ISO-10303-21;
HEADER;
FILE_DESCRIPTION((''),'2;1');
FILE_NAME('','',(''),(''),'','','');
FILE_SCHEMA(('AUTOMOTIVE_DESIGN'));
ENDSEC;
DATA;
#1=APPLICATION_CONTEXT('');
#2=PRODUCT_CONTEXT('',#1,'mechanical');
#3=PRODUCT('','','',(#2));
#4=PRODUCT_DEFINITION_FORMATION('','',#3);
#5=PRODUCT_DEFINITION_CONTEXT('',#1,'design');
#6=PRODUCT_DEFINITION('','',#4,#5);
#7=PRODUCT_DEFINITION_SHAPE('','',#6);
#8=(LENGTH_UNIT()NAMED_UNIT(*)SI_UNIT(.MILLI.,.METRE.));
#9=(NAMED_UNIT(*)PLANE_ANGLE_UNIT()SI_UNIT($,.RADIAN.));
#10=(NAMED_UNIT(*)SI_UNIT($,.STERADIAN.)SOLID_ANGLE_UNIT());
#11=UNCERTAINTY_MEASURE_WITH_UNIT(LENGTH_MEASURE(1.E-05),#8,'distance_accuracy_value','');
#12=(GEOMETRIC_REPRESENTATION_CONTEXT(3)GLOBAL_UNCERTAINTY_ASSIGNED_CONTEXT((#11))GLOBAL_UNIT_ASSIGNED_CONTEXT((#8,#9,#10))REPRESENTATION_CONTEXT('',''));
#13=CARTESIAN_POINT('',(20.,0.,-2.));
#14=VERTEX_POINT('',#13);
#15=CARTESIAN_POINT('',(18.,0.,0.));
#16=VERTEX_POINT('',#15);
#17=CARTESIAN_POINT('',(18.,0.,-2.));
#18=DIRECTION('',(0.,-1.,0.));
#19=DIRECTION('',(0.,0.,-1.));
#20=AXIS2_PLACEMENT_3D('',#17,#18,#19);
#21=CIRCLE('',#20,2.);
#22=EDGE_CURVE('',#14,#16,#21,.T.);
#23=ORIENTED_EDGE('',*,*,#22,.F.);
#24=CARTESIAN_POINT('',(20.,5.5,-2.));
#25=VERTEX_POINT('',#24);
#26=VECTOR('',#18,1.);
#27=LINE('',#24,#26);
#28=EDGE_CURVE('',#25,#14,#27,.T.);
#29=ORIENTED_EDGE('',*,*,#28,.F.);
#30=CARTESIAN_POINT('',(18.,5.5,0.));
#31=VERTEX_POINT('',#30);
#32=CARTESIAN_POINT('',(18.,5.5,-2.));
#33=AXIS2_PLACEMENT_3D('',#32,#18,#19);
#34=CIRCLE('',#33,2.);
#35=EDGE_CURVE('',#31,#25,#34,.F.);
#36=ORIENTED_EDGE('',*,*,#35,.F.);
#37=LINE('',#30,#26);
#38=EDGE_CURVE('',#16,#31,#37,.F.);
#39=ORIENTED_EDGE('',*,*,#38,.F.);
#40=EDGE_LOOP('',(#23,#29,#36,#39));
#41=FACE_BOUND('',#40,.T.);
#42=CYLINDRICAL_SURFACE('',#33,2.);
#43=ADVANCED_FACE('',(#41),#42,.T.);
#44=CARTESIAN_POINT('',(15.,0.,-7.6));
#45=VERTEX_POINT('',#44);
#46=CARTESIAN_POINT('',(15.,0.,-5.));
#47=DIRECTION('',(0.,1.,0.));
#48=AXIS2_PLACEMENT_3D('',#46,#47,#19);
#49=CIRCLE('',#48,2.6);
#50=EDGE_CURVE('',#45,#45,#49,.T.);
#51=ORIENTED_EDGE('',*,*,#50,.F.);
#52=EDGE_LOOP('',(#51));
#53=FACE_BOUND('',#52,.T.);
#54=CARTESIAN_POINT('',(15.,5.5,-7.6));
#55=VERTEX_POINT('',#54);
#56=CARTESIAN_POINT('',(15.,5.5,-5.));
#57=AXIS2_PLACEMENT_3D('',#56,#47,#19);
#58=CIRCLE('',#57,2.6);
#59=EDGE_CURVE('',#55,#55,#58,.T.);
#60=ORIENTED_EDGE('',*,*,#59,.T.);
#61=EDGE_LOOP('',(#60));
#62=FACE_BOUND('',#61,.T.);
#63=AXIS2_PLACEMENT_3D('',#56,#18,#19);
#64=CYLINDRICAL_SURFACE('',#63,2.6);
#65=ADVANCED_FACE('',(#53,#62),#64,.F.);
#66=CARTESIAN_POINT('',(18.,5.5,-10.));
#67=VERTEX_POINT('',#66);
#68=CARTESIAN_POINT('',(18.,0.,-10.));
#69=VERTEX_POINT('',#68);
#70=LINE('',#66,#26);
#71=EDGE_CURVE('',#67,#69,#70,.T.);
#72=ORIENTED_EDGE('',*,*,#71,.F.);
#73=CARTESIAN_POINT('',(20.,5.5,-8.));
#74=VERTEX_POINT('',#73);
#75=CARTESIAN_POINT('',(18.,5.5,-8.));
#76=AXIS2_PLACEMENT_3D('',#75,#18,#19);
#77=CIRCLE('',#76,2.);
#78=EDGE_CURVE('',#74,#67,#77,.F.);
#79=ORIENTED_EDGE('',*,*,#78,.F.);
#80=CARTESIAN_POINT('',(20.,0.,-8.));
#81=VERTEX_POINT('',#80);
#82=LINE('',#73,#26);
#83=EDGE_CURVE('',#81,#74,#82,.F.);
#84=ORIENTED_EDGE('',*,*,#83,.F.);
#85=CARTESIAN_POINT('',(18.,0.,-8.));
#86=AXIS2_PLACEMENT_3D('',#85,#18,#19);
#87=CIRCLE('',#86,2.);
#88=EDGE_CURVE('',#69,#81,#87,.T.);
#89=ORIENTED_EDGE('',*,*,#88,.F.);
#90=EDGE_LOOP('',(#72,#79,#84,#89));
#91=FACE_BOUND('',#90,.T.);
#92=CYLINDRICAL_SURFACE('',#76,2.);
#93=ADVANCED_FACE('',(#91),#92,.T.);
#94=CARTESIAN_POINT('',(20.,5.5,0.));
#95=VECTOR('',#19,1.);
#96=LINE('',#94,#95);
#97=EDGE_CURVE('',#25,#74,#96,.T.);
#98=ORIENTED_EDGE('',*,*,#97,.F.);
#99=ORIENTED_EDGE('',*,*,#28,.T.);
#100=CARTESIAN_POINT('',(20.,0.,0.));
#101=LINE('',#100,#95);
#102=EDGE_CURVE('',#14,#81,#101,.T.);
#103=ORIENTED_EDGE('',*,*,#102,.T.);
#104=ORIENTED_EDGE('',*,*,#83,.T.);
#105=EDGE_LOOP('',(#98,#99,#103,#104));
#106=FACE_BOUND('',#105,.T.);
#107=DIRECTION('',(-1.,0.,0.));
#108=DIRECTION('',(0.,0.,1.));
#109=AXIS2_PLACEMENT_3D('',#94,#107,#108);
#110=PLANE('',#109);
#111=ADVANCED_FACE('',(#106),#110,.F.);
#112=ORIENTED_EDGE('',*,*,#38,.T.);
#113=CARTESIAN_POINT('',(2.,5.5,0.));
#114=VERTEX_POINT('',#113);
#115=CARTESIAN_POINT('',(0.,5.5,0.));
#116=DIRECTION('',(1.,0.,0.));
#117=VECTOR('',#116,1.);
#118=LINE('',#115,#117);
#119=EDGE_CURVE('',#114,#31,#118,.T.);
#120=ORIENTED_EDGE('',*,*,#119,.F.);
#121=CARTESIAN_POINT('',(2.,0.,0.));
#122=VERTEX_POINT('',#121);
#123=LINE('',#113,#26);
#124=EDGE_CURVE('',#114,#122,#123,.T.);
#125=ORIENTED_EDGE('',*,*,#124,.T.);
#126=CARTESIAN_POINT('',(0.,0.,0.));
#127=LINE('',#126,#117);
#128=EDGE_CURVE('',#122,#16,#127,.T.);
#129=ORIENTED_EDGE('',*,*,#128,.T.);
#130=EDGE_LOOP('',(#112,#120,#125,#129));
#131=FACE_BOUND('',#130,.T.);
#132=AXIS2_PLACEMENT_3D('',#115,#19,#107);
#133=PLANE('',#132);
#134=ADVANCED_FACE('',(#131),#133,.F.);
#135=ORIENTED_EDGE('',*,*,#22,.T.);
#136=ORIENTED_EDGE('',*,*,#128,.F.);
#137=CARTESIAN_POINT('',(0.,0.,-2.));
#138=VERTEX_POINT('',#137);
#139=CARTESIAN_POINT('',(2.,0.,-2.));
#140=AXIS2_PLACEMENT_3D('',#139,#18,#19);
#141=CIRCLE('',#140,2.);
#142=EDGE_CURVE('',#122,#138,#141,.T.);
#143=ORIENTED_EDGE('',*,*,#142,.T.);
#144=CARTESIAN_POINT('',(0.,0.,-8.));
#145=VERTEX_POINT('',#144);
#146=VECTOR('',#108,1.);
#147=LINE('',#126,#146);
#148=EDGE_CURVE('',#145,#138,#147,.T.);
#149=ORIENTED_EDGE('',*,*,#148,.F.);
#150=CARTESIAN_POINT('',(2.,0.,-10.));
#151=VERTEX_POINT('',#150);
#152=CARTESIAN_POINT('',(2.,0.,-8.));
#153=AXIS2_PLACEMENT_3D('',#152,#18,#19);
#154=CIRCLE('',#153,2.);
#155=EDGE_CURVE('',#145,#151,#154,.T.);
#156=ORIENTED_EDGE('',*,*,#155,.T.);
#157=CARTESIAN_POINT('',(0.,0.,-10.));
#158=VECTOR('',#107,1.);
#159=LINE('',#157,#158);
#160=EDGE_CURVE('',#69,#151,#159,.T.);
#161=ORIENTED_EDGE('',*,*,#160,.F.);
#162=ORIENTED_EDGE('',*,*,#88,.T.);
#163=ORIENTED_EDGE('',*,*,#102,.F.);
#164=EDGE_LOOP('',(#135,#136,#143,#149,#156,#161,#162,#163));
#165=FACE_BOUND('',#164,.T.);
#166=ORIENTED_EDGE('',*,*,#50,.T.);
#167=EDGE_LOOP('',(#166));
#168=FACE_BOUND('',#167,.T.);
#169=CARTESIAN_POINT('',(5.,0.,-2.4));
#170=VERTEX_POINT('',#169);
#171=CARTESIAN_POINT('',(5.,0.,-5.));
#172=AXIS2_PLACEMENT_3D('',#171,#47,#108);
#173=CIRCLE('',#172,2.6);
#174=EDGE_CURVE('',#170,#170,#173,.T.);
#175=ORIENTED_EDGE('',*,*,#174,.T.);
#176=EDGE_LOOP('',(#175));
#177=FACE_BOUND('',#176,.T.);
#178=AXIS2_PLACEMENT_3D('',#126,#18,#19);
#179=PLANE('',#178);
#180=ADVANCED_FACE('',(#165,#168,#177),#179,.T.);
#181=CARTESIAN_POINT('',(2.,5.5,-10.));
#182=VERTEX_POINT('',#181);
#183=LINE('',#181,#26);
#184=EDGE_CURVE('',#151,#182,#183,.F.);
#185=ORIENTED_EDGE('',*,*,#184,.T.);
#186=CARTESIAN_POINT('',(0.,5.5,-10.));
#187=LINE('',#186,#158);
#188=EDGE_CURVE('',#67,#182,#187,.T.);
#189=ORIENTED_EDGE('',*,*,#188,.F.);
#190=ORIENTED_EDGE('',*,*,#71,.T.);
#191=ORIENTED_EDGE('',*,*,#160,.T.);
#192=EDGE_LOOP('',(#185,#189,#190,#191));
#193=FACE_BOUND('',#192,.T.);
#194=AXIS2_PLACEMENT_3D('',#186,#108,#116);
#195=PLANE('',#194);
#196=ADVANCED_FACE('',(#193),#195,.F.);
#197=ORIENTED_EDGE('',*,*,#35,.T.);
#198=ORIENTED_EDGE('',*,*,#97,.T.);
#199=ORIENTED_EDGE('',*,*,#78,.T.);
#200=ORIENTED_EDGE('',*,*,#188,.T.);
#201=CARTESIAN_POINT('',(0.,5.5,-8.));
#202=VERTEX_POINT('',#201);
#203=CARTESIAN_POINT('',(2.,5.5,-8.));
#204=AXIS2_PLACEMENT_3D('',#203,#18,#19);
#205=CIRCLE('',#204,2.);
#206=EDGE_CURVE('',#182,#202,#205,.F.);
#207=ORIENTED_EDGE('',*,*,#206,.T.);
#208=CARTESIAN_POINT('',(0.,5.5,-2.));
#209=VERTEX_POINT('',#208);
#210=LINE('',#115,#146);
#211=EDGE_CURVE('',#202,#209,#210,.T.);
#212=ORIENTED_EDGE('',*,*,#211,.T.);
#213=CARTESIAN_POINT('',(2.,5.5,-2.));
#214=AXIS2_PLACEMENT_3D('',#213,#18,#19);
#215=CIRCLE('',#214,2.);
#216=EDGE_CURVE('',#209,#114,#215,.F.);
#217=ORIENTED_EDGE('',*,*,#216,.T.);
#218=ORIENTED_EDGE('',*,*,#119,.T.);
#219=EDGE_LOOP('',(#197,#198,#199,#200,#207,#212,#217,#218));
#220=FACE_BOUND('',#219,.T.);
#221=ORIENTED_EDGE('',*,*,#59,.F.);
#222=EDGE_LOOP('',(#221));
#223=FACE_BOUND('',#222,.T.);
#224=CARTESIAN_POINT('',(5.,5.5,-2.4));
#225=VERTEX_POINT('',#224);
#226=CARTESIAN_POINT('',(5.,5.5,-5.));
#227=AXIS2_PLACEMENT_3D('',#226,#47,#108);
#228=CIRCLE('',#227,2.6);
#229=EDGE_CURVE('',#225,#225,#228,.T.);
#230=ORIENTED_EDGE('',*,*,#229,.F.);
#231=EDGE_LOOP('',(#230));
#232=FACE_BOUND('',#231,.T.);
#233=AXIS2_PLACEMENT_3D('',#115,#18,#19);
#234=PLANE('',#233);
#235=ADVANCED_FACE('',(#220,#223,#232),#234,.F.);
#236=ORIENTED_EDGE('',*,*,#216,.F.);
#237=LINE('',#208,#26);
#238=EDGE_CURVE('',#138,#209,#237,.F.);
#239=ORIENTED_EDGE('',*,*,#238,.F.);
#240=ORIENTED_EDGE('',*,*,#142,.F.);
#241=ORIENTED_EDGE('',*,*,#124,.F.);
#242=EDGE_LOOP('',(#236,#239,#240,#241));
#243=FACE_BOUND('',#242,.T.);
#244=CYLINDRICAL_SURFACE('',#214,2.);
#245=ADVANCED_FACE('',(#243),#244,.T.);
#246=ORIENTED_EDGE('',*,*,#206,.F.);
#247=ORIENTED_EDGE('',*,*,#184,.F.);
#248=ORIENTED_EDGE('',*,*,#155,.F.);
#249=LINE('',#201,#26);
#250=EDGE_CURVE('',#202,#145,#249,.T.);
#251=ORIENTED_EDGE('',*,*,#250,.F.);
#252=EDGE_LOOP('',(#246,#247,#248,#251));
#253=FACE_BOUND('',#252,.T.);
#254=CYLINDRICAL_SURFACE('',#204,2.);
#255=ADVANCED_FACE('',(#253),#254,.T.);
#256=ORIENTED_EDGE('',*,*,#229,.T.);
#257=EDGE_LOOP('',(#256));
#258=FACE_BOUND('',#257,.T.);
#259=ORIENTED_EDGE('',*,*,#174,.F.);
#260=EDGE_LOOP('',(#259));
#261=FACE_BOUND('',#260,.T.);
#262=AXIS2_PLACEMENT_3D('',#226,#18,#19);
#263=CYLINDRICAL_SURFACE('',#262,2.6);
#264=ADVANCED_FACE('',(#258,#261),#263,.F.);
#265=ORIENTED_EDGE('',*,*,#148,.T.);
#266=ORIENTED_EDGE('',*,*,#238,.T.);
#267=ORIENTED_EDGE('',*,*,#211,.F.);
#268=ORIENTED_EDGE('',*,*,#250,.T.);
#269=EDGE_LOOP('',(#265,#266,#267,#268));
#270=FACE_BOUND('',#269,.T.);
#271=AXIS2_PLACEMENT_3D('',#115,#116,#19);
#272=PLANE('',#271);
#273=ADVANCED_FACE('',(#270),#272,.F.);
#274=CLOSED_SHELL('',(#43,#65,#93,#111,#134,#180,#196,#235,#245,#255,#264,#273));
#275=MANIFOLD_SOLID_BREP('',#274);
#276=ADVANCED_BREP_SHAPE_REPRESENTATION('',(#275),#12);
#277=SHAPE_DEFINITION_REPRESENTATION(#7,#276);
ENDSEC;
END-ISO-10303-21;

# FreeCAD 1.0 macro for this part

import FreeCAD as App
import Part
import Sketcher
Q = App.Units.Quantity


def edges_at(feature, points):
    """Names of the edges that pass closest to the given points."""
    edges = feature.Shape.Edges
    near = lambda p: min(range(len(edges)), key=lambda i: edges[i].distToShape(Part.Vertex(*p))[0])
    return sorted({f"Edge{near(p) + 1}" for p in points})

doc = App.newDocument("Part")
body = doc.addObject("PartDesign::Body", "Body")

sketch1 = body.newObject("Sketcher::SketchObject", "Sketch")
sketch1.AttachmentSupport = (doc.getObject("XZ_Plane"), [""])
sketch1.MapMode = "FlatFace"
sketch1.addGeometry(Part.LineSegment(App.Vector(0, -10, 0), App.Vector(0, 0, 0)), False)
sketch1.addGeometry(Part.LineSegment(App.Vector(0, 0, 0), App.Vector(20, 0, 0)), False)
sketch1.addGeometry(Part.LineSegment(App.Vector(20, 0, 0), App.Vector(20, -10, 0)), False)
sketch1.addGeometry(Part.LineSegment(App.Vector(20, -10, 0), App.Vector(0, -10, 0)), False)
sketch1.addGeometry(Part.Circle(App.Vector(5, -5, 0), App.Vector(0, 0, 1), 2.6), False)
sketch1.addGeometry(Part.Circle(App.Vector(15, -5, 0), App.Vector(0, 0, 1), 2.6), False)
sketch1.addConstraint(Sketcher.Constraint("Coincident", 0, 2, 1, 1))
sketch1.addConstraint(Sketcher.Constraint("Coincident", 1, 2, 2, 1))
sketch1.addConstraint(Sketcher.Constraint("Coincident", 2, 2, 3, 1))
sketch1.addConstraint(Sketcher.Constraint("Coincident", 3, 2, 0, 1))
sketch1.addConstraint(Sketcher.Constraint("Vertical", 0))
sketch1.addConstraint(Sketcher.Constraint("Horizontal", 1))
sketch1.addConstraint(Sketcher.Constraint("Vertical", 2))
sketch1.addConstraint(Sketcher.Constraint("Horizontal", 3))
sketch1.addConstraint(Sketcher.Constraint("Coincident", 0, 2, -1, 1))
sketch1.addConstraint(Sketcher.Constraint("Equal", 4, 5))
sketch1.addConstraint(Sketcher.Constraint("Horizontal", 4, 3, 5, 3))
sketch1.addConstraint(Sketcher.Constraint("Diameter", 4, Q("5.2 mm")))
sketch1.addConstraint(Sketcher.Constraint("DistanceX", 1, 1, 1, 2, Q("20 mm")))
sketch1.addConstraint(Sketcher.Constraint("DistanceY", 0, 1, 0, 2, Q("10 mm")))
sketch1.addConstraint(Sketcher.Constraint("DistanceX", -1, 1, 4, 3, Q("5 mm")))
sketch1.addConstraint(Sketcher.Constraint("DistanceY", 4, 3, -1, 1, Q("5 mm")))
sketch1.addConstraint(Sketcher.Constraint("DistanceX", -1, 1, 5, 3, Q("15 mm")))
pad1 = body.newObject("PartDesign::Pad", "Pad")
pad1.Profile = sketch1
pad1.Length = 5.5
pad1.Reversed = True
doc.recompute()

fillet = body.newObject("PartDesign::Fillet", "Fillet")
fillet.Base = (pad1, edges_at(pad1, [
    (0, 2.75, -10),
    (20, 2.75, -10),
    (20, 2.75, 0),
    (0, 2.75, 0),
]))
fillet.Radius = 2

doc.recompute()
